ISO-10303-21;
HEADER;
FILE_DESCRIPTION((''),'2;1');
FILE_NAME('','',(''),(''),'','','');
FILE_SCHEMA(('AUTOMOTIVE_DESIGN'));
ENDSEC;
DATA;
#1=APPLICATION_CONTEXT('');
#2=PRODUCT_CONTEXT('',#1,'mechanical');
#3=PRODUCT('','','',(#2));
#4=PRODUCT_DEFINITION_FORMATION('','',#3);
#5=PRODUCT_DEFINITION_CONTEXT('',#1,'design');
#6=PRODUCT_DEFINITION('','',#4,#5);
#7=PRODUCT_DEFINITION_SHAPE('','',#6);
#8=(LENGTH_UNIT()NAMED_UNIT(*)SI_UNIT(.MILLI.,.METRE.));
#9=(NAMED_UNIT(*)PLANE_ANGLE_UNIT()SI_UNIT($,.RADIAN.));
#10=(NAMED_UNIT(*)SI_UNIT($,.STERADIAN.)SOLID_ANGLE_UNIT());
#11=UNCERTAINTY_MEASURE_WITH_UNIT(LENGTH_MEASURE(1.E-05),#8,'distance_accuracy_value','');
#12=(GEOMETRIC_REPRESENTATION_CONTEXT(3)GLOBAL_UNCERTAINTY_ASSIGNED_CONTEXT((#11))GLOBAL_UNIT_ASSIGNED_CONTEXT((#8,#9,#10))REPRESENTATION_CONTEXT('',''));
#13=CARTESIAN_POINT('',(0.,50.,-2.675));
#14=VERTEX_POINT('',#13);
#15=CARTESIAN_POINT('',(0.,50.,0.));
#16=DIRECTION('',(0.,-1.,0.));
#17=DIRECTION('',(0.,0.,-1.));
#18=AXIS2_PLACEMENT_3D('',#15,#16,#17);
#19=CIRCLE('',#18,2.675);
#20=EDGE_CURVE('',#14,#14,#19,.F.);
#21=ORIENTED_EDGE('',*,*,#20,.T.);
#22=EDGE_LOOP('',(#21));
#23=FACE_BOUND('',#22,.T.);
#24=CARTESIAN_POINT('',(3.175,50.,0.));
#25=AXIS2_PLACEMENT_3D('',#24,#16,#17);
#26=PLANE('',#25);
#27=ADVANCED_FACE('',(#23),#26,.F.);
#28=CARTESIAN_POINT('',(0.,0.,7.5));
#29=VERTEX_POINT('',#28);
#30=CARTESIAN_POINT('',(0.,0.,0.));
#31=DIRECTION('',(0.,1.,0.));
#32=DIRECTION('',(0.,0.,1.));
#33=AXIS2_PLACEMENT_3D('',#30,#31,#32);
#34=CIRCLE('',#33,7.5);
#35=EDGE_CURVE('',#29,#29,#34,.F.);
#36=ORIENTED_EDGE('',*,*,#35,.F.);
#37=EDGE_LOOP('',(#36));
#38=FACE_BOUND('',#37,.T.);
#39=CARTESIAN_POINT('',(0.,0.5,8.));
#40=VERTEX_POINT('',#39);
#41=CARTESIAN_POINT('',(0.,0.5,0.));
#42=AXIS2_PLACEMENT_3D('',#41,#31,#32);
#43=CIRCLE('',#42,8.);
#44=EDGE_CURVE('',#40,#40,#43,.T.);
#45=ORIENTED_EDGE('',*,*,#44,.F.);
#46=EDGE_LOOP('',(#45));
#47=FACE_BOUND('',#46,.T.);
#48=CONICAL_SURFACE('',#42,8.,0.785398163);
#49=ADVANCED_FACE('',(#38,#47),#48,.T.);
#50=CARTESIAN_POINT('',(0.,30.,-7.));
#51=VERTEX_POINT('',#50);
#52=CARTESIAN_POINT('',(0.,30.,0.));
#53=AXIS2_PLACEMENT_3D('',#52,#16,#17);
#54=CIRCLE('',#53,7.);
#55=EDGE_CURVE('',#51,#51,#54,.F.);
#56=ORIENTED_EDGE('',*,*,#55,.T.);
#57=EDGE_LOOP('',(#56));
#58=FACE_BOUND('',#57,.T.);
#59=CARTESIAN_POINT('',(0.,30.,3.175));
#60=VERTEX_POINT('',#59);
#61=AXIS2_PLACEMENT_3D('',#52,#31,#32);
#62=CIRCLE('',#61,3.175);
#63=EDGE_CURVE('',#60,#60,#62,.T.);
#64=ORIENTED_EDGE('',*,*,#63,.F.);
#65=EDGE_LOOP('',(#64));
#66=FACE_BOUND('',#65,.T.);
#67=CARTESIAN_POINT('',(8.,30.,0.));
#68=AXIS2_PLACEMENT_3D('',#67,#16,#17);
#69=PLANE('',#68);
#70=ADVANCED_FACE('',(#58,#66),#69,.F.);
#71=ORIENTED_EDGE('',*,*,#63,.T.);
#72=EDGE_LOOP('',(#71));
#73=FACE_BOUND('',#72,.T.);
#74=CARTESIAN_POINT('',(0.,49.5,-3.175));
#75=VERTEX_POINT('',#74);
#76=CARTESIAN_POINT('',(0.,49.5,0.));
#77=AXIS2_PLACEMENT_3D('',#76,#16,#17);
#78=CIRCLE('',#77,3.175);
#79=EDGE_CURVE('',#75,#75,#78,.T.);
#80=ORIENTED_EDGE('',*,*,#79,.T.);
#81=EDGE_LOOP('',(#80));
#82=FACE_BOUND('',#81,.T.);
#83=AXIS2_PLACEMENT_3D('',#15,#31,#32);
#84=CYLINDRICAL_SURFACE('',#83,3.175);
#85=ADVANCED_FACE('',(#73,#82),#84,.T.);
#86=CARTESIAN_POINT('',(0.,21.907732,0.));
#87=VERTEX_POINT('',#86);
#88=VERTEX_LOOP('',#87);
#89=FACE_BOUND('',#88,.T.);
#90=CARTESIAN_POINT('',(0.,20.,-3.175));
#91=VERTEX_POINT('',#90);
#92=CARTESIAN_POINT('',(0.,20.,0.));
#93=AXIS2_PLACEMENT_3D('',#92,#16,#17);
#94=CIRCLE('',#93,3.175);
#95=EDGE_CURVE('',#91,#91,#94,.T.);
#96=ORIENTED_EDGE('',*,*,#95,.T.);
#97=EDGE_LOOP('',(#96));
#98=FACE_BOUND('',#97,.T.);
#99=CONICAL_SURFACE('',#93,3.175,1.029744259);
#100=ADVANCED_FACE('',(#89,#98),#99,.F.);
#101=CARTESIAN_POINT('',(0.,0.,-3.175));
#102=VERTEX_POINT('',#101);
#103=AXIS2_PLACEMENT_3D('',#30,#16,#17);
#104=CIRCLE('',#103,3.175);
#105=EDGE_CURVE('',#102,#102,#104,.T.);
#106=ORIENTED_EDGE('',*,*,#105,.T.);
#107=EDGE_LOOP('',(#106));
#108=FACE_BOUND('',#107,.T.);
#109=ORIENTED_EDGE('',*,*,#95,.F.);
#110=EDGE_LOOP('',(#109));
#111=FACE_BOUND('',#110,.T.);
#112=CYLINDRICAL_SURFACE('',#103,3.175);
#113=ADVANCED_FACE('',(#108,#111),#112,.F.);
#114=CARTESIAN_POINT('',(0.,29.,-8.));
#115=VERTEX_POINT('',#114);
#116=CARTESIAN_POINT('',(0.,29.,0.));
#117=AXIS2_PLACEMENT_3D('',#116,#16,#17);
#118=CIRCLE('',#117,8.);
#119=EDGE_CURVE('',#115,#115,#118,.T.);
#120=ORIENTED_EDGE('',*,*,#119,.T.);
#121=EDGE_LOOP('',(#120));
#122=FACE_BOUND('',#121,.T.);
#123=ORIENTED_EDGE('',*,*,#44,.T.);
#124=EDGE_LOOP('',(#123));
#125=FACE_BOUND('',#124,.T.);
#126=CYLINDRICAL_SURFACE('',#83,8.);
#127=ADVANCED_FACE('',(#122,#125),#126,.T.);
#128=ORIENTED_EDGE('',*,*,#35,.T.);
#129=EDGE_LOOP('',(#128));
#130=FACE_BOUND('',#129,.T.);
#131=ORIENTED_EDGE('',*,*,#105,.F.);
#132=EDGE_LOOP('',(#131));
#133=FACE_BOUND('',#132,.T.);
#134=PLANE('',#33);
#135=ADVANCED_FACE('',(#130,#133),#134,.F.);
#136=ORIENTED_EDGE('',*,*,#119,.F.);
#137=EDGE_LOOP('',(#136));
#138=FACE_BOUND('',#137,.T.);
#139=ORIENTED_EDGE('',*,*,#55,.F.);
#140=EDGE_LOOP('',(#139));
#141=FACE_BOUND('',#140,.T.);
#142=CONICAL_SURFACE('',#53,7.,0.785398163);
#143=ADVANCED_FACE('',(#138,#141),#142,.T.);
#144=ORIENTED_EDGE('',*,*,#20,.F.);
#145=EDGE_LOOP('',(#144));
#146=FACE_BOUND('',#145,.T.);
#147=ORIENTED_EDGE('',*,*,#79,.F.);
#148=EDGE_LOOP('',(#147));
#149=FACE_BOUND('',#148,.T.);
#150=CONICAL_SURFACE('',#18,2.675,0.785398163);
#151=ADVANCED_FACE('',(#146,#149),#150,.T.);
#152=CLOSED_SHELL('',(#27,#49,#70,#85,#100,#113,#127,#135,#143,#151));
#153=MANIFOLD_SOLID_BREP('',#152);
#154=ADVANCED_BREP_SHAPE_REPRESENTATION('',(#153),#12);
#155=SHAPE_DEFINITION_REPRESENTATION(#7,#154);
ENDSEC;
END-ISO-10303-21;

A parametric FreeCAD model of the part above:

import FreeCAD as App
import Part
import Sketcher
Q = App.Units.Quantity


def edges_at(feature, points):
    """Names of the edges that pass closest to the given points."""
    edges = feature.Shape.Edges
    near = lambda p: min(range(len(edges)), key=lambda i: edges[i].distToShape(Part.Vertex(*p))[0])
    return sorted({f"Edge{near(p) + 1}" for p in points})


def add_polygon(sketch, points):
    """Adds a closed chain of lines whose ends are joined by coincident constraints."""
    first, n = sketch.GeometryCount, len(points)
    for a, b in zip(points, points[1:] + points[:1]):
        sketch.addGeometry(Part.LineSegment(App.Vector(*a, 0), App.Vector(*b, 0)), False)
    for i in range(n):
        sketch.addConstraint(Sketcher.Constraint("Coincident", first + i, 2, first + (i + 1) % n, 1))

doc = App.newDocument("Part")
body = doc.addObject("PartDesign::Body", "Body")

sketch1 = body.newObject("Sketcher::SketchObject", "Sketch")
sketch1.AttachmentSupport = (doc.getObject("XY_Plane"), [""])
sketch1.MapMode = "FlatFace"
add_polygon(sketch1, [(0, 0), (8, 0), (8, 30), (3.175, 30), (3.175, 50), (0, 50)])
sketch1.addConstraint(Sketcher.Constraint("Horizontal", 0))
sketch1.addConstraint(Sketcher.Constraint("Vertical", 1))
sketch1.addConstraint(Sketcher.Constraint("Horizontal", 2))
sketch1.addConstraint(Sketcher.Constraint("Vertical", 3))
sketch1.addConstraint(Sketcher.Constraint("Horizontal", 4))
sketch1.addConstraint(Sketcher.Constraint("Vertical", 5))
sketch1.addConstraint(Sketcher.Constraint("Coincident", 5, 2, -1, 1))
sketch1.addConstraint(Sketcher.Constraint("DistanceX", 0, 1, 0, 2, Q("8 mm")))
sketch1.addConstraint(Sketcher.Constraint("DistanceY", 1, 1, 1, 2, Q("30 mm")))
sketch1.addConstraint(Sketcher.Constraint("DistanceY", 3, 1, 3, 2, Q("20 mm")))
sketch1.addConstraint(Sketcher.Constraint("DistanceX", 2, 2, 2, 1, Q("4.825 mm")))
revolution = body.newObject("PartDesign::Revolution", "Revolution")
revolution.Profile = sketch1
revolution.ReferenceAxis = (sketch1, ["V_Axis"])
revolution.Angle = 360
doc.recompute()

chamfer = body.newObject("PartDesign::Chamfer", "Chamfer")
chamfer.Base = (revolution, edges_at(revolution, [(-8, 30, 0)]))
chamfer.Size = 1
doc.recompute()

chamfer2 = body.newObject("PartDesign::Chamfer", "Chamfer001")
chamfer2.Base = (chamfer, edges_at(chamfer, [(-8, 0, 0), (-3.175, 50, 0)]))
chamfer2.Size = 0.5

sketch2 = body.newObject("Sketcher::SketchObject", "Sketch001")
sketch2.AttachmentSupport = (doc.getObject("XZ_Plane"), [""])
sketch2.MapMode = "FlatFace"
sketch2.addGeometry(Part.Circle(App.Vector(0, 0, 0), App.Vector(0, 0, 1), 3.175), False)
sketch2.addConstraint(Sketcher.Constraint("Coincident", 0, 3, -1, 1))
sketch2.addConstraint(Sketcher.Constraint("Diameter", 0, Q("6.35 mm")))
doc.recompute()
hole = body.newObject("PartDesign::Hole", "Hole")
hole.Profile = sketch2
hole.ThreadType = "None"
hole.Diameter = 6.35
hole.DepthType = "Dimension"
hole.Depth = 20
hole.DrillPoint = "Angled"
hole.DrillPointAngle = 118

doc.recompute()
